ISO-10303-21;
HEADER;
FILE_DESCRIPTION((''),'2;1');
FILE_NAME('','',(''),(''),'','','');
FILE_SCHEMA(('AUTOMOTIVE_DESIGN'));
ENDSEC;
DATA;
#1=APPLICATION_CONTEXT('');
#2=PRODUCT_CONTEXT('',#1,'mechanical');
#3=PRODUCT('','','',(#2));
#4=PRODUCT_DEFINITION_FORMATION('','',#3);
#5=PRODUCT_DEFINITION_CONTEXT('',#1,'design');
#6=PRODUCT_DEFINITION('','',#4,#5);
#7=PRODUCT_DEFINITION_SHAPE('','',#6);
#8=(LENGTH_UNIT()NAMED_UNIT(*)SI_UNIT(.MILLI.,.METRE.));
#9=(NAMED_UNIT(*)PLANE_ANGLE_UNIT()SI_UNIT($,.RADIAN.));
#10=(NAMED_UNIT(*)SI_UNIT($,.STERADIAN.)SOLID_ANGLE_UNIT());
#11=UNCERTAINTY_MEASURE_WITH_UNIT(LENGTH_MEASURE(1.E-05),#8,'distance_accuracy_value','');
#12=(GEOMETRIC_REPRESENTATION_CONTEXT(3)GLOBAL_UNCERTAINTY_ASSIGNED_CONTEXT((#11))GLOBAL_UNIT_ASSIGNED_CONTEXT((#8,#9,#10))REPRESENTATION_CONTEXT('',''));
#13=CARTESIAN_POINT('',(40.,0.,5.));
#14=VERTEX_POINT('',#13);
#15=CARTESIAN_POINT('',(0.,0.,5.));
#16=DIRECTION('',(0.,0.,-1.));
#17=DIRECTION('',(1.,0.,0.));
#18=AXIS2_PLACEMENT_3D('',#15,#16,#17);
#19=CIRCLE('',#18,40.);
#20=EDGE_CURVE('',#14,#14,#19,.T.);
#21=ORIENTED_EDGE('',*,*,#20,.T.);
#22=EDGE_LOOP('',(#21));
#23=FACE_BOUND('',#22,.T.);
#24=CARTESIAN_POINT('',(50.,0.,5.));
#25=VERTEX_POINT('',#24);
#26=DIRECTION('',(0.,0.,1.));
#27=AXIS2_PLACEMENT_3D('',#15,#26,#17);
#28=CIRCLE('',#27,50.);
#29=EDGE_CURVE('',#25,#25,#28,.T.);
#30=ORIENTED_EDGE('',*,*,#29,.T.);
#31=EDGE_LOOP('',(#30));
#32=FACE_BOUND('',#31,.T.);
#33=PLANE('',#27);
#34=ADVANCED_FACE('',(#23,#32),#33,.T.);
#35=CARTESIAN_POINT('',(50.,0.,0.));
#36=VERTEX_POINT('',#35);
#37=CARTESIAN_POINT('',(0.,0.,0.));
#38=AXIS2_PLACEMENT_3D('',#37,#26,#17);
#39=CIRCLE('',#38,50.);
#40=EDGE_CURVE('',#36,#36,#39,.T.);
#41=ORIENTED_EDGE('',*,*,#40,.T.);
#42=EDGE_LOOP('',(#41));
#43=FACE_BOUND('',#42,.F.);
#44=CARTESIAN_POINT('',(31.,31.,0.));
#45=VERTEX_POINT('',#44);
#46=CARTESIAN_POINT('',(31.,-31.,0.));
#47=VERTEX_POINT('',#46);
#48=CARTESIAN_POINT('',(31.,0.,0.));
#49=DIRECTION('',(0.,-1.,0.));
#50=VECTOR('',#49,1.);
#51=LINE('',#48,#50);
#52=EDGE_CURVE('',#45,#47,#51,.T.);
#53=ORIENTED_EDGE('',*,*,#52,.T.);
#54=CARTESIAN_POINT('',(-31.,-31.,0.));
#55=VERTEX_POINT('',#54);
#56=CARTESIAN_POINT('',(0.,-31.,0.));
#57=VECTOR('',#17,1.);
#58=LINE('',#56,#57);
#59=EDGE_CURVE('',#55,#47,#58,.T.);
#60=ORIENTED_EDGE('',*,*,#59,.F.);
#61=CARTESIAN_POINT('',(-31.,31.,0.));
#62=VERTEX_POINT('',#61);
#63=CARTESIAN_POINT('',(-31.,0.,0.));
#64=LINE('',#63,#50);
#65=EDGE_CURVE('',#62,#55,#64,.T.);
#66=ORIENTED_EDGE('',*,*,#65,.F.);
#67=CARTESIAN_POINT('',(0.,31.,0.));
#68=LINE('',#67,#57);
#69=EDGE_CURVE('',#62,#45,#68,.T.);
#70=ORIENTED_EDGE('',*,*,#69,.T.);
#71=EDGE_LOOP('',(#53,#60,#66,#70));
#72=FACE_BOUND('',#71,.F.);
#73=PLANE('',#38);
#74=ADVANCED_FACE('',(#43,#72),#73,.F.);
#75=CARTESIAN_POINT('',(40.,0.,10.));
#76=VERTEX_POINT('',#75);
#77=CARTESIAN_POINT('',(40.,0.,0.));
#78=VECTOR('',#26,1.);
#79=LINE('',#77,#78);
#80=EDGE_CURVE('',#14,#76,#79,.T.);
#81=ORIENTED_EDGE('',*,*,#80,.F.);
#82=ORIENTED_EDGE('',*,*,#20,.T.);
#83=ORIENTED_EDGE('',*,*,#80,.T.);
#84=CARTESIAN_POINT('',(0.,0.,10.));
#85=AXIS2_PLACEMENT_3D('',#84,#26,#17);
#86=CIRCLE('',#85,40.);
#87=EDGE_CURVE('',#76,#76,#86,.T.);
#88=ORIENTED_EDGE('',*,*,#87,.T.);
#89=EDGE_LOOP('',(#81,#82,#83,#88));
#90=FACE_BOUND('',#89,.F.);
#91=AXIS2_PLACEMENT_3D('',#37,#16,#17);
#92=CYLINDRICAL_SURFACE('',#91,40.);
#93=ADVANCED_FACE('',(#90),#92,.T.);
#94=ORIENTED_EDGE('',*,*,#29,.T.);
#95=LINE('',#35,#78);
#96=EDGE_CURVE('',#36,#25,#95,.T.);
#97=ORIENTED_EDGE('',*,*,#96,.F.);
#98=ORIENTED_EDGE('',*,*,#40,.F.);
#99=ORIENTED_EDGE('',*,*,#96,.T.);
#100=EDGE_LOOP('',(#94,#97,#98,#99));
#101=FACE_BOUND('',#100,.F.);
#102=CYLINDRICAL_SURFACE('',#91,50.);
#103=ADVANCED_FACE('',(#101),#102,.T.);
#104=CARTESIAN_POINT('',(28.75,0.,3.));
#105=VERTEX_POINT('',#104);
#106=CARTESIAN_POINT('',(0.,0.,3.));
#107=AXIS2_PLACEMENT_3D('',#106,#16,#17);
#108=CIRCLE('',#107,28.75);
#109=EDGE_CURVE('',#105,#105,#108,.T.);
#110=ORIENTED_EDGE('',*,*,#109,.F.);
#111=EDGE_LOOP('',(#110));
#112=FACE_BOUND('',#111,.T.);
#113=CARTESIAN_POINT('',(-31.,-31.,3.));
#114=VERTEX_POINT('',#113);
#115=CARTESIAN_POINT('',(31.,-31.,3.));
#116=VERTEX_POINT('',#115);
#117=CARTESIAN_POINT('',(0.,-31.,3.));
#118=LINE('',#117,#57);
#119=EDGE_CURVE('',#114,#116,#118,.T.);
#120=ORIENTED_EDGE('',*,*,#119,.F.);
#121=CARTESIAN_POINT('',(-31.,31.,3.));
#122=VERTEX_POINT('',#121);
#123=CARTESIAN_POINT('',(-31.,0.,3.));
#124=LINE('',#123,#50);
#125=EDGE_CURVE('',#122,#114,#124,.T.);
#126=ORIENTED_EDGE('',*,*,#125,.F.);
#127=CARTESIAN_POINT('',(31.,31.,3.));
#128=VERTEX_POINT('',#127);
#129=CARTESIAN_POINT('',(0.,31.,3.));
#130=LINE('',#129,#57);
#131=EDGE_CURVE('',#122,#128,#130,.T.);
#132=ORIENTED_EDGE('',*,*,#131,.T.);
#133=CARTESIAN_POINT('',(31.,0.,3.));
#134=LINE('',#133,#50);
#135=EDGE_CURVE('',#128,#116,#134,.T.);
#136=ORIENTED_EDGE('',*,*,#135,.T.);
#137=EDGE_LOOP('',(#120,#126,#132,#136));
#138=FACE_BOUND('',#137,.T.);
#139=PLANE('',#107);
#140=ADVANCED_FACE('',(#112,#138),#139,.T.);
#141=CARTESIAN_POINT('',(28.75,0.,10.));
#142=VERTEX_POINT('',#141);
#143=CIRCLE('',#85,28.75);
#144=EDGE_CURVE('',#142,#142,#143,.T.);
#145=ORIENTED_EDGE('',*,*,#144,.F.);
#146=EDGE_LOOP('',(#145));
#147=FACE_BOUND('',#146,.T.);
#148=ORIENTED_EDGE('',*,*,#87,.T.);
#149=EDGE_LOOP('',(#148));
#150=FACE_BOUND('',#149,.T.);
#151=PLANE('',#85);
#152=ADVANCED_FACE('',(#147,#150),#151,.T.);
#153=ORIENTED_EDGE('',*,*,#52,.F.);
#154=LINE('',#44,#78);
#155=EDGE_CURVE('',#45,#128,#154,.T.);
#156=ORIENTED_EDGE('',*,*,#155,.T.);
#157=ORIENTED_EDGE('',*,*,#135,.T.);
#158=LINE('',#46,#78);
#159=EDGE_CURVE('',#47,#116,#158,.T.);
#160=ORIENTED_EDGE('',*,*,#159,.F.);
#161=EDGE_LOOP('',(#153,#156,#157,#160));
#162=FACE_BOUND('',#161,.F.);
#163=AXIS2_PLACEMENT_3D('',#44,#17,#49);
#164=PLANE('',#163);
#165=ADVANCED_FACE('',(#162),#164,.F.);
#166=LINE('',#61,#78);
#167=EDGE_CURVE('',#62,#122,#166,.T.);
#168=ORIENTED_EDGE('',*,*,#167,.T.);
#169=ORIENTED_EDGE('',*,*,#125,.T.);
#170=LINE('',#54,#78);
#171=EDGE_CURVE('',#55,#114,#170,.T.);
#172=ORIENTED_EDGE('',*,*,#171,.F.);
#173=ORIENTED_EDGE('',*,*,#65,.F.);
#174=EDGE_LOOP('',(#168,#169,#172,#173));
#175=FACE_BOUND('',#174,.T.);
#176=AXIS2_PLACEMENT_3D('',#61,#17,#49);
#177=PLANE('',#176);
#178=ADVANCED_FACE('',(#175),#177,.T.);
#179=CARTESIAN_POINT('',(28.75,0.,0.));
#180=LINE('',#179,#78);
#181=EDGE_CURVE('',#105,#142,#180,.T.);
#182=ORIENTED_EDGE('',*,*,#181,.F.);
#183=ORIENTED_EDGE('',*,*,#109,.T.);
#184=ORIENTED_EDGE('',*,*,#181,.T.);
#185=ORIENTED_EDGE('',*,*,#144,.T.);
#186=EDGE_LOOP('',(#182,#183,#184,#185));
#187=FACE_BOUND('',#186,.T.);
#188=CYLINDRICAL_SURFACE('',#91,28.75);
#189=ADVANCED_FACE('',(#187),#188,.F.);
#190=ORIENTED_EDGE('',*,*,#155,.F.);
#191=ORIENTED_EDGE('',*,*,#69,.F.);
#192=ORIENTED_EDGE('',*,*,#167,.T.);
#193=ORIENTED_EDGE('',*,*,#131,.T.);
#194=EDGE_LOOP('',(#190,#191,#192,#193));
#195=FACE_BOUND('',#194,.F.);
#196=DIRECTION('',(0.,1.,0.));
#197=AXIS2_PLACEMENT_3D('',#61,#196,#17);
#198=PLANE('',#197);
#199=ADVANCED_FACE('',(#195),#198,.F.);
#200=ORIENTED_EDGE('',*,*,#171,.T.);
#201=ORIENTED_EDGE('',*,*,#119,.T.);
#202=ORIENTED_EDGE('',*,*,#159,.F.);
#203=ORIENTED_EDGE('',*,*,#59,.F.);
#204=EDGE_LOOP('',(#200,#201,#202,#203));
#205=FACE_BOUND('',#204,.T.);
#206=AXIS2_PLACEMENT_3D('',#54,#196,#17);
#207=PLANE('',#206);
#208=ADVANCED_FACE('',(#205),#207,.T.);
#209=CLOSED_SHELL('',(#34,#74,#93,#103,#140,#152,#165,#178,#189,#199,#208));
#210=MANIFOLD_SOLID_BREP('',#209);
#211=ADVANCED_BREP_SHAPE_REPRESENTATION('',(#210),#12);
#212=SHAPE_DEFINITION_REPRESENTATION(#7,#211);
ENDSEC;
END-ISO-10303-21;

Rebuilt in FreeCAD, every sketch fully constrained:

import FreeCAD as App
import Part
import Sketcher

doc = App.newDocument("Part")
body = doc.addObject("PartDesign::Body", "Body")

sketch1 = doc.addObject("Sketcher::SketchObject", "Sketch")
body.addObject(sketch1)
sketch1.AttachmentSupport = (doc.XY_Plane, [""])
sketch1.MapMode = "FlatFace"
sketch1.addGeometry([
    Part.Circle(App.Vector(0, 0, 0), App.Vector(0, 0, 1), 50),
    Part.Circle(App.Vector(0, 0, 0), App.Vector(0, 0, 1), 29),
], False)
sketch1.addConstraint([
    Sketcher.Constraint("Coincident", 0, 3, -1, 1),
    Sketcher.Constraint("Coincident", 1, 3, -1, 1),
    Sketcher.Constraint("Diameter", 0, 100.0),
    Sketcher.Constraint("Diameter", 1, 57.5),
])
pad1 = doc.addObject("PartDesign::Pad", "Pad")
body.addObject(pad1)
pad1.Profile = sketch1
pad1.Length = 5

sketch2 = doc.addObject("Sketcher::SketchObject", "Sketch001")
body.addObject(sketch2)
sketch2.AttachmentSupport = (doc.XY_Plane, [""])
sketch2.MapMode = "FlatFace"
sketch2.addGeometry([
    Part.Circle(App.Vector(0, 0, 0), App.Vector(0, 0, 1), 40),
    Part.Circle(App.Vector(0, 0, 0), App.Vector(0, 0, 1), 29),
], False)
sketch2.addConstraint([
    Sketcher.Constraint("Coincident", 0, 3, -1, 1),
    Sketcher.Constraint("Coincident", 1, 3, -1, 1),
    Sketcher.Constraint("Diameter", 0, 80.0),
    Sketcher.Constraint("Diameter", 1, 57.5),
])
pad2 = doc.addObject("PartDesign::Pad", "Pad001")
body.addObject(pad2)
pad2.Profile = sketch2
pad2.Length = 10

sketch3 = doc.addObject("Sketcher::SketchObject", "Sketch002")
body.addObject(sketch3)
sketch3.AttachmentSupport = (doc.XY_Plane, [""])
sketch3.MapMode = "FlatFace"
sketch3.addGeometry([
    Part.LineSegment(App.Vector(-31, -31, 0), App.Vector(-31, 31, 0)),
    Part.LineSegment(App.Vector(-31, 31, 0), App.Vector(31, 31, 0)),
    Part.LineSegment(App.Vector(31, 31, 0), App.Vector(31, -31, 0)),
    Part.LineSegment(App.Vector(31, -31, 0), App.Vector(-31, -31, 0)),
    Part.Circle(App.Vector(0, 0, 0), App.Vector(0, 0, 1), 29),
], False)
sketch3.addConstraint([
    Sketcher.Constraint("Coincident", 0, 2, 1, 1),
    Sketcher.Constraint("Coincident", 1, 2, 2, 1),
    Sketcher.Constraint("Coincident", 2, 2, 3, 1),
    Sketcher.Constraint("Coincident", 3, 2, 0, 1),
    Sketcher.Constraint("Vertical", 0),
    Sketcher.Constraint("Horizontal", 1),
    Sketcher.Constraint("Vertical", 2),
    Sketcher.Constraint("Horizontal", 3),
    Sketcher.Constraint("Coincident", 4, 3, -1, 1),
    Sketcher.Constraint("Symmetric", 0, 2, 2, 2, -1, 1),
    Sketcher.Constraint("Equal", 3, 0),
    Sketcher.Constraint("Diameter", 4, 57.5),
    Sketcher.Constraint("DistanceX", 1, 1, 1, 2, 62.0),
])
pocket1 = doc.addObject("PartDesign::Pocket", "Pocket")
body.addObject(pocket1)
pocket1.Profile = sketch3
pocket1.Length = 3
pocket1.Reversed = True

doc.recompute()
